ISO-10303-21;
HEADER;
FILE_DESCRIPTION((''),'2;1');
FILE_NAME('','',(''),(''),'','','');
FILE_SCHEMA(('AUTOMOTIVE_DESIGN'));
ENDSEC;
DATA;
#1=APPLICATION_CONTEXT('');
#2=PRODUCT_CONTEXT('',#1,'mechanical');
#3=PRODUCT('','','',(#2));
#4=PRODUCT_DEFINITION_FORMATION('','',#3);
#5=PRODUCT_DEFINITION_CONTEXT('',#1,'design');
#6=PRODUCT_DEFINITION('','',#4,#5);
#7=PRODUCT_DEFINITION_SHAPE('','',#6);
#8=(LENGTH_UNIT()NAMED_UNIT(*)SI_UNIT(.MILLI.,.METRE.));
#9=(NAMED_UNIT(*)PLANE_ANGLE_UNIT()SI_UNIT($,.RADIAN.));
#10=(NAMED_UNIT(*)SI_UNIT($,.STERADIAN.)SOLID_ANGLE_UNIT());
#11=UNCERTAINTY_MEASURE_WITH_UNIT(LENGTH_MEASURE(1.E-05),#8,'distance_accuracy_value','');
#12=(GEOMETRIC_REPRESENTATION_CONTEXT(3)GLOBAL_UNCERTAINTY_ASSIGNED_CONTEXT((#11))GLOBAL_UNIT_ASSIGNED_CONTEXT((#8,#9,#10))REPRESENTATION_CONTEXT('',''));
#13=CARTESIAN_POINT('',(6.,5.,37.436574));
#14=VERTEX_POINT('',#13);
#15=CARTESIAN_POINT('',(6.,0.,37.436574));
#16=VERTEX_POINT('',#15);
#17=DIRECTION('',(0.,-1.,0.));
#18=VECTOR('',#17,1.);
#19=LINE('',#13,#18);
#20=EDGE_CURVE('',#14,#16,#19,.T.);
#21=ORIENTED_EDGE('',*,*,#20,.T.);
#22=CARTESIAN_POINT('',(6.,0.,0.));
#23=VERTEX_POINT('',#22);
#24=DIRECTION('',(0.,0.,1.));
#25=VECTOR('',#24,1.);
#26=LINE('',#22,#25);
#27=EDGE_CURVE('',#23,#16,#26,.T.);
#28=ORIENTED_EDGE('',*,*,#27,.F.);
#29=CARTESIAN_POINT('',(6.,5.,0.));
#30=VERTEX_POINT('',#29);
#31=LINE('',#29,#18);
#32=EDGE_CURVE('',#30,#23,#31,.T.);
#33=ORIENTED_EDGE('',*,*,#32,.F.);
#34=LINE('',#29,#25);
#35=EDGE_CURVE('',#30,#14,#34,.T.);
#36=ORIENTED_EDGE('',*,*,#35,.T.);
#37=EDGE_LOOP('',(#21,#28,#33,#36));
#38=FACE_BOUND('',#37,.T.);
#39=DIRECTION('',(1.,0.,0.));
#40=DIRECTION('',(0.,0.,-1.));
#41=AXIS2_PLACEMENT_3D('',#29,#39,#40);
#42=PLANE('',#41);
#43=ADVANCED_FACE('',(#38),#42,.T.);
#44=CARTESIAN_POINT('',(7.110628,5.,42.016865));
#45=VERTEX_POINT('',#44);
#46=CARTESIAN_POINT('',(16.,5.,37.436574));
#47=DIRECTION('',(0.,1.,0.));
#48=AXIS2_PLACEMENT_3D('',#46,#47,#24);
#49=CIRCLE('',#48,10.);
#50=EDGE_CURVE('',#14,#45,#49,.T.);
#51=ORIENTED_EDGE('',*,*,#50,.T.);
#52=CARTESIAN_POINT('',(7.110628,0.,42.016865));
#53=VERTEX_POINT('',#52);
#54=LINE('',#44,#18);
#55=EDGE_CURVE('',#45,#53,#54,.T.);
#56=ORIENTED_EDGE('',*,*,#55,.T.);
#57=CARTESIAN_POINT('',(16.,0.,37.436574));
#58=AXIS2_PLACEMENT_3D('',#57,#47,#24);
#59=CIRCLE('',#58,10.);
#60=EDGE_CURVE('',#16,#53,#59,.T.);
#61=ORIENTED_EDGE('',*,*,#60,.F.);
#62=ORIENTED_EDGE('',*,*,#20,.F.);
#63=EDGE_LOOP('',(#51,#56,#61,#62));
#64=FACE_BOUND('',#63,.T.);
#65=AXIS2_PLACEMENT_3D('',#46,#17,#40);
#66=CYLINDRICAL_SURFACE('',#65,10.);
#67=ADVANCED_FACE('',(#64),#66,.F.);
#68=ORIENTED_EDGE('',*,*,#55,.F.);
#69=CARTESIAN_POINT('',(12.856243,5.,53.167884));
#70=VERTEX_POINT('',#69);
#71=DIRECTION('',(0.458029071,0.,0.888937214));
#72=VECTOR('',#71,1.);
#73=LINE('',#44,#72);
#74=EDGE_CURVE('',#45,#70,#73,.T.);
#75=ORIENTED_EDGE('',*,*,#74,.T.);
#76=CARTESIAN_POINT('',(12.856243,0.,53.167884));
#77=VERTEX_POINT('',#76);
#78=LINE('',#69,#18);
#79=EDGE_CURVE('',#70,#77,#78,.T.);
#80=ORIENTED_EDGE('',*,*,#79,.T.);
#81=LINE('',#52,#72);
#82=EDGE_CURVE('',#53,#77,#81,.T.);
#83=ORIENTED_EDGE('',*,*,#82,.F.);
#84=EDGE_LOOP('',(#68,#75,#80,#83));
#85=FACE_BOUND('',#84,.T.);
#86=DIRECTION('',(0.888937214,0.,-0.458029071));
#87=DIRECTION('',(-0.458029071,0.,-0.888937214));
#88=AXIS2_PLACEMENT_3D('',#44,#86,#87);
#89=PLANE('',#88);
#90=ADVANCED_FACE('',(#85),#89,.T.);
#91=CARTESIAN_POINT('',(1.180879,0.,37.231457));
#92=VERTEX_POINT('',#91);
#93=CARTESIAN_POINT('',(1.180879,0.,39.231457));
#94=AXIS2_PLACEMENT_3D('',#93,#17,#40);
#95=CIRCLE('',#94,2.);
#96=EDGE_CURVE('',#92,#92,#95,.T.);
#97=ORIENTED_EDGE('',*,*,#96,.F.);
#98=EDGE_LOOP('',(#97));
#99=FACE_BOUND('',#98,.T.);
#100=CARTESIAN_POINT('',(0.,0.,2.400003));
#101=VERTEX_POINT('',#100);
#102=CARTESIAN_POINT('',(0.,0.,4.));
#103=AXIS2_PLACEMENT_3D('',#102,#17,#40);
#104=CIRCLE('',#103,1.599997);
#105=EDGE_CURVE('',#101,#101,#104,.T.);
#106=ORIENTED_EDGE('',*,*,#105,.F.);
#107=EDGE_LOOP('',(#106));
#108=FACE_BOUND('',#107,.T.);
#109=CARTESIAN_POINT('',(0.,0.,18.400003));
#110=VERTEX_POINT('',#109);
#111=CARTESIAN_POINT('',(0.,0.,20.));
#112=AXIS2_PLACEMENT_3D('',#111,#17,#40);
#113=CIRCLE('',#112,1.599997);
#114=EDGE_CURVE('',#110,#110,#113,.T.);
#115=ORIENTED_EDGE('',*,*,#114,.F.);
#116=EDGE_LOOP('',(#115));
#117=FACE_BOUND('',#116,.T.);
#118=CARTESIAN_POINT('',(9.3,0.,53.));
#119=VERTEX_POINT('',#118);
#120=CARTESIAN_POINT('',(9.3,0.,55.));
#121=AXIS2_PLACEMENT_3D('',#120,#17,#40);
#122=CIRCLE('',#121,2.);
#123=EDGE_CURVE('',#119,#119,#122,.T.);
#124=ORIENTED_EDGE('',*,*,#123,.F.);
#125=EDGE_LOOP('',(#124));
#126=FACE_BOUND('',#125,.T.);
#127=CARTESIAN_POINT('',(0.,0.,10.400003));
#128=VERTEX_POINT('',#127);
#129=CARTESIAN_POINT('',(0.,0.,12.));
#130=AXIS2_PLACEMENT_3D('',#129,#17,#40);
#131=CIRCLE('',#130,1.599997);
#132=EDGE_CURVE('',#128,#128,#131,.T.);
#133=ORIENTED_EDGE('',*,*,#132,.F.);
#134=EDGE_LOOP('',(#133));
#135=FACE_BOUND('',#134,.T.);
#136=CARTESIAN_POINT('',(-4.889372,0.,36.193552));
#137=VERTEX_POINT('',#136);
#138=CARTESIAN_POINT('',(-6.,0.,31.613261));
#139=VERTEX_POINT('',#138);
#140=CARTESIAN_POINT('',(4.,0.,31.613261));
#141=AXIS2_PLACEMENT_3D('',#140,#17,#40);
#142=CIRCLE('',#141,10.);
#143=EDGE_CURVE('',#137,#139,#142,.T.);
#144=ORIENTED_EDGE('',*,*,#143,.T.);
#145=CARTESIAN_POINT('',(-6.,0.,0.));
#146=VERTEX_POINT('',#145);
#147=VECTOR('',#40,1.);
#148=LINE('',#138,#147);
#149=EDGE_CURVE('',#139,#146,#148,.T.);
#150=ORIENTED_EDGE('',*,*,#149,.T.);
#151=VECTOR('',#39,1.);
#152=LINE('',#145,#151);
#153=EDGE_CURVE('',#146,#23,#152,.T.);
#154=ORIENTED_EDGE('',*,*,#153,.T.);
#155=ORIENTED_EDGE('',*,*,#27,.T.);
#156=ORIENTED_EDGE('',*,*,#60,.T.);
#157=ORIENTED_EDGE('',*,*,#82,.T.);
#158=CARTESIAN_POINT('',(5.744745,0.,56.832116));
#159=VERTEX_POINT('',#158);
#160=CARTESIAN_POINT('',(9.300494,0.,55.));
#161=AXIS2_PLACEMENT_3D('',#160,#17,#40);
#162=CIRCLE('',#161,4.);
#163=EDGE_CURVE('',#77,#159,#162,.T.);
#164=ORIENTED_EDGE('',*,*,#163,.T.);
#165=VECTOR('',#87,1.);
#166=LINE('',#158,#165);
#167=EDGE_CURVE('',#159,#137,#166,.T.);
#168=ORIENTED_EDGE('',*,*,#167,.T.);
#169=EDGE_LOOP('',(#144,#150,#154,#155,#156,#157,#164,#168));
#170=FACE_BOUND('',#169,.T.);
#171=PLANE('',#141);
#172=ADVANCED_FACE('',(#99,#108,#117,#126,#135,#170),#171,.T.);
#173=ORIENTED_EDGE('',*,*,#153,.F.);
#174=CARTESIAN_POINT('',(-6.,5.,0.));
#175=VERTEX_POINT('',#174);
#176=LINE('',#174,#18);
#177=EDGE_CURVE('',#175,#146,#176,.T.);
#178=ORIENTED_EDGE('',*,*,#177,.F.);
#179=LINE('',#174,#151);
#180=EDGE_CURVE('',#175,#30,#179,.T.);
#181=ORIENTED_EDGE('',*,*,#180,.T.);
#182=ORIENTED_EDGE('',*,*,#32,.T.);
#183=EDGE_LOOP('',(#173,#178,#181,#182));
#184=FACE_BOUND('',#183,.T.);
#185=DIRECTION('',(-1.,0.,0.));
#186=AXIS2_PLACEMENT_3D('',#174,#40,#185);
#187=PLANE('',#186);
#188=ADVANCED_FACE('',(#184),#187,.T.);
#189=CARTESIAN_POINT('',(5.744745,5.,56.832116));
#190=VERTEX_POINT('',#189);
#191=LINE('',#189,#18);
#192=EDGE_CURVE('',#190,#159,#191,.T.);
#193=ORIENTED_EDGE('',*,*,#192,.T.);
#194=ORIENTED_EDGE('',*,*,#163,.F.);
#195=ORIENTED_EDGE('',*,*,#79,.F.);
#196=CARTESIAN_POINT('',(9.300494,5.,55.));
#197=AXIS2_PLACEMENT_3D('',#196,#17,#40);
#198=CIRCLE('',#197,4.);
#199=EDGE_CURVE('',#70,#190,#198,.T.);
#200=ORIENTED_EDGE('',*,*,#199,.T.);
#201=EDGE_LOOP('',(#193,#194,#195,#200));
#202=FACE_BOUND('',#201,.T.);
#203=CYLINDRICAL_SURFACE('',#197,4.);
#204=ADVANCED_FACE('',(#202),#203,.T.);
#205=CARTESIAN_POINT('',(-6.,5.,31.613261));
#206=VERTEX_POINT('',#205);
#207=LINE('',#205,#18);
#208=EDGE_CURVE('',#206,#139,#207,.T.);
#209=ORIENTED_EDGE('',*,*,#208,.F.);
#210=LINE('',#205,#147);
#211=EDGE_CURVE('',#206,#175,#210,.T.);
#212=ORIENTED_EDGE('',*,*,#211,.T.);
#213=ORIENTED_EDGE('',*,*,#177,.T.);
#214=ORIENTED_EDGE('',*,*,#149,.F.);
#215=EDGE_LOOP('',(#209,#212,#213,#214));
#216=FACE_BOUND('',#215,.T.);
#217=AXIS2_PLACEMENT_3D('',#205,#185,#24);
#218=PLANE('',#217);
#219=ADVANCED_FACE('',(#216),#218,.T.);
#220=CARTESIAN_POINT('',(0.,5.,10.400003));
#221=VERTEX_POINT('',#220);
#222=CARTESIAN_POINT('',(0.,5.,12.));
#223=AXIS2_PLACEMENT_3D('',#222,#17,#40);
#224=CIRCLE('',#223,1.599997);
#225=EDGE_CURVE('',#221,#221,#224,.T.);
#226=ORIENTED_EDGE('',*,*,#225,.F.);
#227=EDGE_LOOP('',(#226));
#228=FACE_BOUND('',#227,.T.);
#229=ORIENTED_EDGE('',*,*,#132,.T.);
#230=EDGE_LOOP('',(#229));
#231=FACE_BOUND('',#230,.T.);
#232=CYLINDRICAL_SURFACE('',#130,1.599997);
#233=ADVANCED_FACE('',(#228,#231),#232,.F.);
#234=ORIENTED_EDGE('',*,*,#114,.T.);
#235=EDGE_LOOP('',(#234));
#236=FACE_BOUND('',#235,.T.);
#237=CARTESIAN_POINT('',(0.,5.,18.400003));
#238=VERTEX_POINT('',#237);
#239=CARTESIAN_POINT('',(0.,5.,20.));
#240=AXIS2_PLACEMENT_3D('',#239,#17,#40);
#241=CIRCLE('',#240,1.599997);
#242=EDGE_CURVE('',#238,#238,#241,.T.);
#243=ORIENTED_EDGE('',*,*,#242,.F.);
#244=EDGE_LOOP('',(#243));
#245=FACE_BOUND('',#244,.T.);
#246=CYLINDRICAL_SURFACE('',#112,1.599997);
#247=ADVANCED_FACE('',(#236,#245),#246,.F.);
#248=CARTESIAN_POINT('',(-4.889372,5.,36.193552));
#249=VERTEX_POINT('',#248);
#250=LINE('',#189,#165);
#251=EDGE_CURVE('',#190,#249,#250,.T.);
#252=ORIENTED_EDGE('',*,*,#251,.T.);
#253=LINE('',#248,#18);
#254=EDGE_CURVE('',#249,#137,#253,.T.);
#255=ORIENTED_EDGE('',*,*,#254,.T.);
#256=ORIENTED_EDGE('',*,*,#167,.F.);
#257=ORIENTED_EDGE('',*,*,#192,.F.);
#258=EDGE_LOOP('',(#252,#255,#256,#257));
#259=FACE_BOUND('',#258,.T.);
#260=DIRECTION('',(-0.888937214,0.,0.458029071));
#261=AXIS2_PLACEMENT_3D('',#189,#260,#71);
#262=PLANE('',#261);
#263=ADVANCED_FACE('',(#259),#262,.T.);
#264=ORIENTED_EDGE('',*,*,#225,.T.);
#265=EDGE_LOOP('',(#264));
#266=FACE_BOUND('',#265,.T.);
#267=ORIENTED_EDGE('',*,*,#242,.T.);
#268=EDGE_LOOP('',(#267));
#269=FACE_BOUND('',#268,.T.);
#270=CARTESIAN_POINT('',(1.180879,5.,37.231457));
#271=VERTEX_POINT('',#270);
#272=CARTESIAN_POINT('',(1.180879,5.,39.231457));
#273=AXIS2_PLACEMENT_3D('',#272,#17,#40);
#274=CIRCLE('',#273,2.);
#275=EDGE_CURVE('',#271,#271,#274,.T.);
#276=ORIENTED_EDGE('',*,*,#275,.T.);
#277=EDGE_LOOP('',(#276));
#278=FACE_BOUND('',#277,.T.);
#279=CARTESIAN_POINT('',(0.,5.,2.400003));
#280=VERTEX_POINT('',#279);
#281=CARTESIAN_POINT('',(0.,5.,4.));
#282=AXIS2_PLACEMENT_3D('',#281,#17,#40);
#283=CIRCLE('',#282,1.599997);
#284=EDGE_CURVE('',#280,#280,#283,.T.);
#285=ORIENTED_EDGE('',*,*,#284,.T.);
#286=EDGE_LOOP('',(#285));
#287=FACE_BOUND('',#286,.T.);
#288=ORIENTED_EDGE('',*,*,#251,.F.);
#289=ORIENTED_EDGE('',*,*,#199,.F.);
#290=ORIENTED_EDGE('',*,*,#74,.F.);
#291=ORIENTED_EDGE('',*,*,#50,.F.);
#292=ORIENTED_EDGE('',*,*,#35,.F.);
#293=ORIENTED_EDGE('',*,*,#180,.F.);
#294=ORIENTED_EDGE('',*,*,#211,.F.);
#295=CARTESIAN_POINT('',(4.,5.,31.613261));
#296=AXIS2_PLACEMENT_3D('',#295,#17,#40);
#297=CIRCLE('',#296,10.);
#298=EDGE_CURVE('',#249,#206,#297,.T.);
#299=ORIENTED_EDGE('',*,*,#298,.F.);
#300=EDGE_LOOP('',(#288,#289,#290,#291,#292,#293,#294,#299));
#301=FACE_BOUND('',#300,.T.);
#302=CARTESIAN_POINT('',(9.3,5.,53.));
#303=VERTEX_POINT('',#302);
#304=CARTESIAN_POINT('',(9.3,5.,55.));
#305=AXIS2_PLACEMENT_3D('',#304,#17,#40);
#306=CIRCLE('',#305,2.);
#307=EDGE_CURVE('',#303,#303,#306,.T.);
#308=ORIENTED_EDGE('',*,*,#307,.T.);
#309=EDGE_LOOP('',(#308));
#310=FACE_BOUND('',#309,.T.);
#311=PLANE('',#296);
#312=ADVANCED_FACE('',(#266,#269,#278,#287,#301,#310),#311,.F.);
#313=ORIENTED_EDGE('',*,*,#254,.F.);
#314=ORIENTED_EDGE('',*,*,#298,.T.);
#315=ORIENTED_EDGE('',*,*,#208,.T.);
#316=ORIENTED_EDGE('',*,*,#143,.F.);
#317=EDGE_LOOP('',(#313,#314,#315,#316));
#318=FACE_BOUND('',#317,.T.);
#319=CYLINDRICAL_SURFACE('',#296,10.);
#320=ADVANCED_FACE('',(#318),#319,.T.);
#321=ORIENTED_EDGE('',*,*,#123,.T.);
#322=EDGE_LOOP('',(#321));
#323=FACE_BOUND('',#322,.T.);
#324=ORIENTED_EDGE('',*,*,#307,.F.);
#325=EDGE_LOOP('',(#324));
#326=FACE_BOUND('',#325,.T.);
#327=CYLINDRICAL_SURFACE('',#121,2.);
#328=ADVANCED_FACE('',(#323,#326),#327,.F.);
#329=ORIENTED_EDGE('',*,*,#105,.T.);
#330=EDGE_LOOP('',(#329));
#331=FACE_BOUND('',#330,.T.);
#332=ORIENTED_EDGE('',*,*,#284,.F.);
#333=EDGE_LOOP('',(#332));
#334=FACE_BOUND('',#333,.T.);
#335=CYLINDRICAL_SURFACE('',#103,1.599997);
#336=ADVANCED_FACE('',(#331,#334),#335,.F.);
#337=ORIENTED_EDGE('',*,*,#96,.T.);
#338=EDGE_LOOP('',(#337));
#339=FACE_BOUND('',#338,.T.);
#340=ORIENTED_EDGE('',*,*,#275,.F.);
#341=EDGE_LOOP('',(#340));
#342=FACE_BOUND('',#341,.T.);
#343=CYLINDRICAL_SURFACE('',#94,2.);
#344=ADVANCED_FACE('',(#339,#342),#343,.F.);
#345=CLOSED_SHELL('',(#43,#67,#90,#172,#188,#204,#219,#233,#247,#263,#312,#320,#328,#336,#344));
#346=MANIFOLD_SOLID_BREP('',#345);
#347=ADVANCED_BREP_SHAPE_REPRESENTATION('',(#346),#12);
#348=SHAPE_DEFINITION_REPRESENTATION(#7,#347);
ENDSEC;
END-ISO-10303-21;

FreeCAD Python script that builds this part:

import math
import FreeCAD as App
import Part
import Sketcher
from FreeCAD import Vector
Q = App.Units.Quantity

doc = App.newDocument("Part")
body = doc.addObject("PartDesign::Body", "Body")

sketch1 = doc.addObject("Sketcher::SketchObject", "Sketch")
body.addObject(sketch1)
sketch1.AttachmentSupport = (doc.XZ_Plane, [""])
sketch1.MapMode = "FlatFace"
sketch1.addGeometry([
    Part.LineSegment(Vector(-6, 31.6, 0), Vector(-6, 0, 0)),
    Part.LineSegment(Vector(-6, 0, 0), Vector(6, 0, 0)),
    Part.LineSegment(Vector(6, 0, 0), Vector(6, 37.4, 0)),
    Part.ArcOfCircle(Part.Circle(Vector(16, 37.4, 0), Vector(0, 0, 1), 10), math.radians(153), math.radians(180)),
    Part.LineSegment(Vector(7.1, 42, 0), Vector(12.9, 53.2, 0)),
    Part.ArcOfCircle(Part.Circle(Vector(9.3, 55, 0), Vector(0, 0, 1), 4), math.radians(-27), math.radians(153)),
    Part.LineSegment(Vector(5.7, 56.8, 0), Vector(-4.9, 36.2, 0)),
    Part.ArcOfCircle(Part.Circle(Vector(4, 31.6, 0), Vector(0, 0, 1), 10), math.radians(153), math.radians(180)),
], False)
sketch1.addConstraint([
    Sketcher.Constraint("Coincident", 0, 2, 1, 1),
    Sketcher.Constraint("Coincident", 1, 2, 2, 1),
    Sketcher.Constraint("Tangent", 2, 2, 3, 2),
    Sketcher.Constraint("Tangent", 3, 1, 4, 1),
    Sketcher.Constraint("Tangent", 4, 2, 5, 1),
    Sketcher.Constraint("Tangent", 5, 2, 6, 1),
    Sketcher.Constraint("Tangent", 6, 2, 7, 1),
    Sketcher.Constraint("Tangent", 7, 2, 0, 1),
    Sketcher.Constraint("Vertical", 0),
    Sketcher.Constraint("Horizontal", 1),
    Sketcher.Constraint("Vertical", 2),
    Sketcher.Constraint("Equal", 3, 7),
    Sketcher.Constraint("Symmetric", 0, 2, 1, 2, -1, 1),
    Sketcher.Constraint("Parallel", 4, 6),
    Sketcher.Constraint("Radius", 3, Q("10 mm")),
    Sketcher.Constraint("Radius", 5, Q("4 mm")),
    Sketcher.Constraint("DistanceX", 1, 1, 1, 2, Q("12 mm")),
    Sketcher.Constraint("DistanceY", -1, 1, 5, 3, Q("55 mm")),
    Sketcher.Constraint("Angle", 4, Q("62.74 deg")),
    Sketcher.Constraint("DistanceY", 0, 2, 0, 1, Q("31.613261 mm")),
])
pad1 = doc.addObject("PartDesign::Pad", "Pad")
body.addObject(pad1)
pad1.Profile = sketch1
pad1.Length = 5
pad1.Reversed = True

sketch2 = doc.addObject("Sketcher::SketchObject", "Sketch001")
body.addObject(sketch2)
sketch2.AttachmentSupport = (doc.XZ_Plane, [""])
sketch2.MapMode = "FlatFace"
sketch2.addGeometry(Part.Circle(Vector(0, 4, 0), Vector(0, 0, 1), 1.6), False)
sketch2.addConstraint([
    Sketcher.Constraint("PointOnObject", 0, 3, -2),
    Sketcher.Constraint("DistanceY", -1, 1, 0, 3, Q("4 mm")),
    Sketcher.Constraint("Diameter", 0, Q("3.199994 mm")),
])
doc.recompute()
hole = doc.addObject("PartDesign::Hole", "Hole")
body.addObject(hole)
hole.Profile = sketch2
hole.ThreadType = "None"
hole.Diameter = 3.199994
hole.DepthType = "ThroughAll"
doc.recompute()

linearpattern = doc.addObject("PartDesign::LinearPattern", "LinearPattern")
body.addObject(linearpattern)
linearpattern.Originals = [hole]
linearpattern.Direction = (doc.Z_Axis, [""])
linearpattern.Mode = "offset"
linearpattern.Offset = 8
linearpattern.Occurrences = 3
body.Tip = linearpattern

sketch3 = doc.addObject("Sketcher::SketchObject", "Sketch002")
body.addObject(sketch3)
sketch3.AttachmentSupport = (doc.XZ_Plane, [""])
sketch3.MapMode = "FlatFace"
sketch3.addGeometry([
    Part.Circle(Vector(9.3, 55, 0), Vector(0, 0, 1), 2),
    Part.Circle(Vector(1.2, 39.2, 0), Vector(0, 0, 1), 2),
], False)
sketch3.addConstraint([
    Sketcher.Constraint("Equal", 0, 1),
    Sketcher.Constraint("Diameter", 0, Q("4 mm")),
    Sketcher.Constraint("DistanceY", -1, 1, 0, 3, Q("55 mm")),
    Sketcher.Constraint("DistanceX", -1, 1, 0, 3, Q("9.3 mm")),
    Sketcher.Constraint("DistanceX", -1, 1, 1, 3, Q("1.180879 mm")),
    Sketcher.Constraint("DistanceY", -1, 1, 1, 3, Q("39.231457 mm")),
])
doc.recompute()
hole2 = doc.addObject("PartDesign::Hole", "Hole001")
body.addObject(hole2)
hole2.Profile = sketch3
hole2.ThreadType = "None"
hole2.Diameter = 4
hole2.DepthType = "ThroughAll"

doc.recompute()
